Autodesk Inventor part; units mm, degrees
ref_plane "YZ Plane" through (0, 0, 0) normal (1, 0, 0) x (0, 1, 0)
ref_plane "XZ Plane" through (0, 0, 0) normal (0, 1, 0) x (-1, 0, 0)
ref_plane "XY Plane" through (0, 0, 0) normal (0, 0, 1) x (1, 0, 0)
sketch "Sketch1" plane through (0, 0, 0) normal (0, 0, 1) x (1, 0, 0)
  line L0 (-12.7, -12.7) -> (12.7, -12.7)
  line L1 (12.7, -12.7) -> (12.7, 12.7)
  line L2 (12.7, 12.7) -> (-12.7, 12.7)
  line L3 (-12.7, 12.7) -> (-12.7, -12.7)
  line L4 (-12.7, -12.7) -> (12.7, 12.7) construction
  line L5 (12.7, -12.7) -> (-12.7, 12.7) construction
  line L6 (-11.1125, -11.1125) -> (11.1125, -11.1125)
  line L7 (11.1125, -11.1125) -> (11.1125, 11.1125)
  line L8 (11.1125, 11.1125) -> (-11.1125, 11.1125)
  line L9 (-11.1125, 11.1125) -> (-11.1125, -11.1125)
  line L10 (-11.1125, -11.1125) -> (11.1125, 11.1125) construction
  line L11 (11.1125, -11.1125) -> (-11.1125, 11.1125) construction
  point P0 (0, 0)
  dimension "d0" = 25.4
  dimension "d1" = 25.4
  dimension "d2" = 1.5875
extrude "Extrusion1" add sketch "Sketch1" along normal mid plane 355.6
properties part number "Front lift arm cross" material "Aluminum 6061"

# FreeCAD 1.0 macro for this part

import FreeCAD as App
import Part
import Sketcher
from FreeCAD import Vector
Q = App.Units.Quantity

doc = App.newDocument("Part")
body = doc.addObject("PartDesign::Body", "Body")

# Sketch on XY plane
sketch1 = body.newObject("Sketcher::SketchObject", "Sketch")
sketch1.AttachmentSupport = (doc.getObject("XY_Plane"), [""])
sketch1.MapMode = "FlatFace"
sketch1.addGeometry(Part.LineSegment(Vector(-13, 13, 0), Vector(-13, -13, 0)), False)
sketch1.addGeometry(Part.LineSegment(Vector(-13, -13, 0), Vector(13, -13, 0)), False)
sketch1.addGeometry(Part.LineSegment(Vector(13, -13, 0), Vector(13, 13, 0)), False)
sketch1.addGeometry(Part.LineSegment(Vector(13, 13, 0), Vector(-13, 13, 0)), False)
sketch1.addGeometry(Part.LineSegment(Vector(11, -11, 0), Vector(-11, -11, 0)), False)
sketch1.addGeometry(Part.LineSegment(Vector(-11, -11, 0), Vector(-11, 11, 0)), False)
sketch1.addGeometry(Part.LineSegment(Vector(-11, 11, 0), Vector(11, 11, 0)), False)
sketch1.addGeometry(Part.LineSegment(Vector(11, 11, 0), Vector(11, -11, 0)), False)
sketch1.addConstraint(Sketcher.Constraint("Coincident", 0, 2, 1, 1))
sketch1.addConstraint(Sketcher.Constraint("Coincident", 1, 2, 2, 1))
sketch1.addConstraint(Sketcher.Constraint("Coincident", 2, 2, 3, 1))
sketch1.addConstraint(Sketcher.Constraint("Coincident", 3, 2, 0, 1))
sketch1.addConstraint(Sketcher.Constraint("Coincident", 4, 2, 5, 1))
sketch1.addConstraint(Sketcher.Constraint("Coincident", 5, 2, 6, 1))
sketch1.addConstraint(Sketcher.Constraint("Coincident", 6, 2, 7, 1))
sketch1.addConstraint(Sketcher.Constraint("Coincident", 7, 2, 4, 1))
sketch1.addConstraint(Sketcher.Constraint("Vertical", 0))
sketch1.addConstraint(Sketcher.Constraint("Horizontal", 1))
sketch1.addConstraint(Sketcher.Constraint("Vertical", 2))
sketch1.addConstraint(Sketcher.Constraint("Horizontal", 3))
sketch1.addConstraint(Sketcher.Constraint("Horizontal", 4))
sketch1.addConstraint(Sketcher.Constraint("Vertical", 5))
sketch1.addConstraint(Sketcher.Constraint("Horizontal", 6))
sketch1.addConstraint(Sketcher.Constraint("Vertical", 7))
sketch1.addConstraint(Sketcher.Constraint("Symmetric", 0, 2, 2, 2, -1, 1))
sketch1.addConstraint(Sketcher.Constraint("Symmetric", 4, 2, 6, 2, -1, 1))
sketch1.addConstraint(Sketcher.Constraint("Equal", 3, 0))
sketch1.addConstraint(Sketcher.Constraint("Equal", 6, 5))
sketch1.addConstraint(Sketcher.Constraint("DistanceX", 1, 1, 1, 2, Q("1 in")))
sketch1.addConstraint(Sketcher.Constraint("DistanceX", 0, 2, 4, 2, Q("0.0625 in")))
pad1 = body.newObject("PartDesign::Pad", "Pad")
pad1.Profile = sketch1
pad1.Length = Q("14 in")
pad1.Midplane = True

doc.recompute()
